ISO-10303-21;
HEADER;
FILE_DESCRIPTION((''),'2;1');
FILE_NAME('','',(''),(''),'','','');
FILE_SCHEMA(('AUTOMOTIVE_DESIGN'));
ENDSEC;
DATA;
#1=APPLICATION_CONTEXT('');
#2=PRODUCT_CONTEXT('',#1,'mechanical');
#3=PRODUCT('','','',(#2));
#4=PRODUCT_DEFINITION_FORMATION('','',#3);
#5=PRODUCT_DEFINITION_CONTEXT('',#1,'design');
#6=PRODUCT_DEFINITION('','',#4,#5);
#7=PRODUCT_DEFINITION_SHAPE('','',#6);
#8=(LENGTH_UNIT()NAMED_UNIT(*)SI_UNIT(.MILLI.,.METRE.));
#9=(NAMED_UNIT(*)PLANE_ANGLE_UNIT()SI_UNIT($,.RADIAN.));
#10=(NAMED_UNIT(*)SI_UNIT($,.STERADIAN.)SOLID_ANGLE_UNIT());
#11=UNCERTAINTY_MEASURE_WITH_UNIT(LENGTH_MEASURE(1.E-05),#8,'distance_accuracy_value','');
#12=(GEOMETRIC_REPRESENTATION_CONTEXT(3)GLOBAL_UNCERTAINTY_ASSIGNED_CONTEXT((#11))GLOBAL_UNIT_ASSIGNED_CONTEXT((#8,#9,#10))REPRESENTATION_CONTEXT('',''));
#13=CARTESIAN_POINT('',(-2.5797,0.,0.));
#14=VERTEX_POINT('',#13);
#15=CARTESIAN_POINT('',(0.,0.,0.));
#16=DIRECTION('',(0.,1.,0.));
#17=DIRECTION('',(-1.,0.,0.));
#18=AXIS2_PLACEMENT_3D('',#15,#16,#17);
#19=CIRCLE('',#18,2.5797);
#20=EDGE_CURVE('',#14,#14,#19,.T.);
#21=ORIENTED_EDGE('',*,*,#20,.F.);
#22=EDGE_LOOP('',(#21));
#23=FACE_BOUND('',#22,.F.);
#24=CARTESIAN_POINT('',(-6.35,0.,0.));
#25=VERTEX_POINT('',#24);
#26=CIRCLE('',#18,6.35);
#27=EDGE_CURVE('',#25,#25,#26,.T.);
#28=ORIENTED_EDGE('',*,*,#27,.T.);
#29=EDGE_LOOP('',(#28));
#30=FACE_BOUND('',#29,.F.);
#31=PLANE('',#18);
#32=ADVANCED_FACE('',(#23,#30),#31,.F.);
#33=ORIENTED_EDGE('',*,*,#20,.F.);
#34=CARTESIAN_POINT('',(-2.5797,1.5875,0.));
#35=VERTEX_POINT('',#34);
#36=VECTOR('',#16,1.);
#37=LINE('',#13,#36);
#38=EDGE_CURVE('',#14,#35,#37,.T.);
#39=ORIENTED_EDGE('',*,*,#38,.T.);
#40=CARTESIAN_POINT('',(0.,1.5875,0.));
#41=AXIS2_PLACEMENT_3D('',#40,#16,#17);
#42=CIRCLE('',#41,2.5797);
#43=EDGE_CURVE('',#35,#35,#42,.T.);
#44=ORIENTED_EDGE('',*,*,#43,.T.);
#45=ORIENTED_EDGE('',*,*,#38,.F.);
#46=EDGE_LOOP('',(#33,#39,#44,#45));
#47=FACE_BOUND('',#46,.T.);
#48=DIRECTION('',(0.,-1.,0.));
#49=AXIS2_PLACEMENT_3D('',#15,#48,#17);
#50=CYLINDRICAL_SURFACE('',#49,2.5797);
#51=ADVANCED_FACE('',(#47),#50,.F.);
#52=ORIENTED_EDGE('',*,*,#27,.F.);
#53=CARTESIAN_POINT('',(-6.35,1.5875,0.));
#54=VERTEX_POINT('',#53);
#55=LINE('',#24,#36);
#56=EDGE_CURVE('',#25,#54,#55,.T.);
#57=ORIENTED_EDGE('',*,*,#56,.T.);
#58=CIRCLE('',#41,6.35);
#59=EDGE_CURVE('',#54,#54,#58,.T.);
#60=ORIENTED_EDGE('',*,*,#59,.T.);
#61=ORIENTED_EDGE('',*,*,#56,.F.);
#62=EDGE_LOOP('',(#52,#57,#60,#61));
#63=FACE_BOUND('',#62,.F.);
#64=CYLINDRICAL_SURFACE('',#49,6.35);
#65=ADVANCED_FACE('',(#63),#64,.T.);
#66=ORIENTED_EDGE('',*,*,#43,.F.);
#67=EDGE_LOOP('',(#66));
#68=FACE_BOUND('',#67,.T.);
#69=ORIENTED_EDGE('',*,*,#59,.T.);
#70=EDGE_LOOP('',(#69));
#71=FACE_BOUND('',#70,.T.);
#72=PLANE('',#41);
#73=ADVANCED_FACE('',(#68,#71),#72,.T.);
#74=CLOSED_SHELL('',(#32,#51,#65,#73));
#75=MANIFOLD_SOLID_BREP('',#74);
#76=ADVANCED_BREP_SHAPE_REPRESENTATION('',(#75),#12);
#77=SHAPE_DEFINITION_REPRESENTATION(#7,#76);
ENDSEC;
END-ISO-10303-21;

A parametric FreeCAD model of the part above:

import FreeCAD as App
import Part
import Sketcher

V = App.Vector
Q = App.Units.Quantity

doc = App.newDocument("Part")
params = doc.addObject("Spreadsheet::Sheet", "Params")
for row, (alias, value) in enumerate([
    ("sketch1_diameter", "0.5 in"),
    ("sketch1_diameter2", "0.203126 in"),
    ("pad1_length", "0.0625 in"),
], start=1):
    params.set(f"A{row}", alias)
    params.set(f"B{row}", "=" + value)
    params.setAlias(f"B{row}", alias)

body = doc.addObject("PartDesign::Body", "Body")

# Sketch on XZ plane
sketch1 = doc.addObject("Sketcher::SketchObject", "Sketch")
body.addObject(sketch1)
sketch1.AttachmentSupport = (doc.XZ_Plane, [""])
sketch1.MapMode = "FlatFace"
sketch1.addGeometry([
    Part.Circle(V(0, 0, 0), V(0, 0, 1), 6.3),
    Part.Circle(V(0, 0, 0), V(0, 0, 1), 2.6),
], False)
sketch1.addConstraint([
    Sketcher.Constraint("Coincident", 0, 3, -1, 1),
    Sketcher.Constraint("Coincident", 1, 3, -1, 1),
    Sketcher.Constraint("Diameter", 0, Q("0.5 in")),
    Sketcher.Constraint("Diameter", 1, Q("0.203126 in")),
])
sketch1.setExpression("Constraints[2]", "Params.sketch1_diameter")
sketch1.setExpression("Constraints[3]", "Params.sketch1_diameter2")
pad1 = doc.addObject("PartDesign::Pad", "Pad")
body.addObject(pad1)
pad1.Profile = sketch1
pad1.setExpression("Length", "Params.pad1_length")
pad1.Reversed = True

doc.recompute()
